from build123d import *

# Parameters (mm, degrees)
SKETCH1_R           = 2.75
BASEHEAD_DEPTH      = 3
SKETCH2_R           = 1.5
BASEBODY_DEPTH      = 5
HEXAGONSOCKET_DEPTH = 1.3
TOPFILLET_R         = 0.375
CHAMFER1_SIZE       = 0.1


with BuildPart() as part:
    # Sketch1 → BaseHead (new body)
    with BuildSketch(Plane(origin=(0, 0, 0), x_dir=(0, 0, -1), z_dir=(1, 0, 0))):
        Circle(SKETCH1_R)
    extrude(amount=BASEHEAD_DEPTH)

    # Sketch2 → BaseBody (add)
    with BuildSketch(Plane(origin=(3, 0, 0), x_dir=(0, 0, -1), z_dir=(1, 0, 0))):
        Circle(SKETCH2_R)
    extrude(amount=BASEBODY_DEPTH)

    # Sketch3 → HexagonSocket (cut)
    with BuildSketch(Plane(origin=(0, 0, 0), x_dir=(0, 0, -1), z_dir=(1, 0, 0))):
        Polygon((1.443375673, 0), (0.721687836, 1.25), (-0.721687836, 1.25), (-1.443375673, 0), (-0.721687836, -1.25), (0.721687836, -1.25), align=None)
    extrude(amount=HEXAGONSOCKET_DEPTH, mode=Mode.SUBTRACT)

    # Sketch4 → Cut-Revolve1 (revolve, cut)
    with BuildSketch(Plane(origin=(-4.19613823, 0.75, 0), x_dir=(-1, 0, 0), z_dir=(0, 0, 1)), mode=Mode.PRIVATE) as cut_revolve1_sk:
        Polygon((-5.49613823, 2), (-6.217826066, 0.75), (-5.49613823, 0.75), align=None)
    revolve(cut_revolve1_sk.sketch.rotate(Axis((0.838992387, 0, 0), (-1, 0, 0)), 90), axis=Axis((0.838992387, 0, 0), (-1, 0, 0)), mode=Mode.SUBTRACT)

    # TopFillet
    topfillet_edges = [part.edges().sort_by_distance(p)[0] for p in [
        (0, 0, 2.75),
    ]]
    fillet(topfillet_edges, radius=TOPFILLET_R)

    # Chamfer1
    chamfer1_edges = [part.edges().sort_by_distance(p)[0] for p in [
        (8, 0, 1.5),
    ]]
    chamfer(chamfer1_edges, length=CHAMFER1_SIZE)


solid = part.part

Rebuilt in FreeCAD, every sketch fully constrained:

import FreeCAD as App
import Part
import Sketcher

V = App.Vector
Q = App.Units.Quantity


def edges_at(feature, points):
    """Names of the edges that pass closest to the given points."""
    edges = feature.Shape.Edges
    near = lambda p: min(range(len(edges)), key=lambda i: edges[i].distToShape(Part.Vertex(*p))[0])
    return sorted({f"Edge{near(p) + 1}" for p in points})

doc = App.newDocument("Part")
params = doc.addObject("Spreadsheet::Sheet", "Params")
for row, (alias, value) in enumerate([
    ("sketch1_diameter", "5.5 mm"),
    ("pad1_length", "3 mm"),
    ("sketch2_diameter", "3 mm"),
    ("pad2_length", "5 mm"),
    ("pocket1_length", "1.3 mm"),
    ("sketch4_height", "1.25 mm"),
    ("groove_angle", "360 deg"),
    ("fillet_radius", "0.375 mm"),
    ("chamfer_size", "0.1 mm"),
], start=1):
    params.set(f"A{row}", alias)
    params.set(f"B{row}", "=" + value)
    params.setAlias(f"B{row}", alias)

body = doc.addObject("PartDesign::Body", "Body")

# Sketch on YZ plane
sketch1 = doc.addObject("Sketcher::SketchObject", "Sketch")
body.addObject(sketch1)
sketch1.AttachmentSupport = (doc.YZ_Plane, [""])
sketch1.MapMode = "FlatFace"
sketch1.addGeometry(Part.Circle(V(0, 0, 0), V(0, 0, 1), 2.75), False)
sketch1.addConstraint([
    Sketcher.Constraint("Coincident", 0, 3, -1, 1),
    Sketcher.Constraint("Diameter", 0, 5.5),
])
sketch1.setExpression("Constraints[1]", "Params.sketch1_diameter")
pad1 = doc.addObject("PartDesign::Pad", "Pad")
body.addObject(pad1)
pad1.Profile = sketch1
pad1.setExpression("Length", "Params.pad1_length")

# Sketch on YZ plane
sketch2 = doc.addObject("Sketcher::SketchObject", "Sketch001")
body.addObject(sketch2)
sketch2.AttachmentSupport = (doc.YZ_Plane, [""])
sketch2.MapMode = "FlatFace"
sketch2.AttachmentOffset = App.Placement(V(0, 0, 3), App.Rotation())
sketch2.addGeometry(Part.Circle(V(0, 0, 0), V(0, 0, 1), 1.5), False)
sketch2.addConstraint([
    Sketcher.Constraint("Coincident", 0, 3, -1, 1),
    Sketcher.Constraint("Diameter", 0, 3.0),
])
sketch2.setExpression("Constraints[1]", "Params.sketch2_diameter")
pad2 = doc.addObject("PartDesign::Pad", "Pad001")
body.addObject(pad2)
pad2.Profile = sketch2
pad2.setExpression("Length", "Params.pad2_length")

# Sketch on YZ plane
sketch3 = doc.addObject("Sketcher::SketchObject", "Sketch002")
body.addObject(sketch3)
sketch3.AttachmentSupport = (doc.YZ_Plane, [""])
sketch3.MapMode = "FlatFace"
sketch3.addGeometry([
    Part.LineSegment(V(0, -1.443376, 0), V(1.25, -0.721688, 0)),  # 0
    Part.LineSegment(V(1.25, -0.721688, 0), V(1.25, 0.721688, 0)),  # 1
    Part.LineSegment(V(1.25, 0.721688, 0), V(0, 1.443376, 0)),  # 2
    Part.LineSegment(V(0, 1.443376, 0), V(-1.25, 0.721688, 0)),  # 3
    Part.LineSegment(V(-1.25, 0.721688, 0), V(-1.25, -0.721688, 0)),  # 4
    Part.LineSegment(V(-1.25, -0.721688, 0), V(0, -1.443376, 0)),  # 5
], False)
sketch3.addConstraint([
    Sketcher.Constraint("Coincident", 0, 2, 1, 1),
    Sketcher.Constraint("Coincident", 1, 2, 2, 1),
    Sketcher.Constraint("Coincident", 2, 2, 3, 1),
    Sketcher.Constraint("Coincident", 3, 2, 4, 1),
    Sketcher.Constraint("Coincident", 4, 2, 5, 1),
    Sketcher.Constraint("Coincident", 5, 2, 0, 1),
    Sketcher.Constraint("Vertical", 1),
    Sketcher.Constraint("Vertical", 4),
    Sketcher.Constraint("Symmetric", 0, 2, 3, 2, -1, 1),
    Sketcher.Constraint("Symmetric", 2, 2, 5, 2, -1, 1),
    Sketcher.Constraint("PointOnObject", 2, 2, -2),
    Sketcher.Constraint("Parallel", 2, 5),
    Sketcher.Constraint("Horizontal", 1, 2, 3, 2),
    Sketcher.Constraint("Angle", 0, Q("30 deg")),
    Sketcher.Constraint("DistanceX", 3, 2, 1, 2, 2.5),
    Sketcher.Constraint("DistanceY", 1, 1, 1, 2, 1.443376),
])
pocket1 = doc.addObject("PartDesign::Pocket", "Pocket")
body.addObject(pocket1)
pocket1.Profile = sketch3
pocket1.setExpression("Length", "Params.pocket1_length")
pocket1.Reversed = True

# Sketch on XY plane
sketch4 = doc.addObject("Sketcher::SketchObject", "Sketch003")
body.addObject(sketch4)
sketch4.AttachmentSupport = (doc.XY_Plane, [""])
sketch4.MapMode = "FlatFace"
sketch4.addGeometry([
    Part.LineSegment(V(1.3, -1.25, 0), V(2.021688, 0, 0)),
    Part.LineSegment(V(2.021688, 0, 0), V(1.3, 0, 0)),
    Part.LineSegment(V(1.3, 0, 0), V(1.3, -1.25, 0)),
], False)
sketch4.addConstraint([
    Sketcher.Constraint("Coincident", 0, 2, 1, 1),
    Sketcher.Constraint("Coincident", 1, 2, 2, 1),
    Sketcher.Constraint("Coincident", 2, 2, 0, 1),
    Sketcher.Constraint("Horizontal", 1),
    Sketcher.Constraint("Vertical", 2),
    Sketcher.Constraint("PointOnObject", 0, 2, -1),
    Sketcher.Constraint("Angle", 0, Q("60 deg")),
    Sketcher.Constraint("DistanceY", 2, 2, 2, 1, 1.25),
    Sketcher.Constraint("DistanceX", -1, 1, 1, 2, 1.3),
])
sketch4.setExpression("Constraints[7]", "Params.sketch4_height")
groove = doc.addObject("PartDesign::Groove", "Groove")
body.addObject(groove)
groove.Profile = sketch4
groove.ReferenceAxis = (sketch4, ["H_Axis"])
groove.setExpression("Angle", "Params.groove_angle")
doc.recompute()

fillet = doc.addObject("PartDesign::Fillet", "Fillet")
body.addObject(fillet)
fillet.Base = (groove, edges_at(groove, [(0, 0, 2.75)]))
fillet.setExpression("Radius", "Params.fillet_radius")
doc.recompute()

chamfer = doc.addObject("PartDesign::Chamfer", "Chamfer")
body.addObject(chamfer)
chamfer.Base = (fillet, edges_at(fillet, [(8, 0, 1.5)]))
chamfer.setExpression("Size", "Params.chamfer_size")

doc.recompute()
